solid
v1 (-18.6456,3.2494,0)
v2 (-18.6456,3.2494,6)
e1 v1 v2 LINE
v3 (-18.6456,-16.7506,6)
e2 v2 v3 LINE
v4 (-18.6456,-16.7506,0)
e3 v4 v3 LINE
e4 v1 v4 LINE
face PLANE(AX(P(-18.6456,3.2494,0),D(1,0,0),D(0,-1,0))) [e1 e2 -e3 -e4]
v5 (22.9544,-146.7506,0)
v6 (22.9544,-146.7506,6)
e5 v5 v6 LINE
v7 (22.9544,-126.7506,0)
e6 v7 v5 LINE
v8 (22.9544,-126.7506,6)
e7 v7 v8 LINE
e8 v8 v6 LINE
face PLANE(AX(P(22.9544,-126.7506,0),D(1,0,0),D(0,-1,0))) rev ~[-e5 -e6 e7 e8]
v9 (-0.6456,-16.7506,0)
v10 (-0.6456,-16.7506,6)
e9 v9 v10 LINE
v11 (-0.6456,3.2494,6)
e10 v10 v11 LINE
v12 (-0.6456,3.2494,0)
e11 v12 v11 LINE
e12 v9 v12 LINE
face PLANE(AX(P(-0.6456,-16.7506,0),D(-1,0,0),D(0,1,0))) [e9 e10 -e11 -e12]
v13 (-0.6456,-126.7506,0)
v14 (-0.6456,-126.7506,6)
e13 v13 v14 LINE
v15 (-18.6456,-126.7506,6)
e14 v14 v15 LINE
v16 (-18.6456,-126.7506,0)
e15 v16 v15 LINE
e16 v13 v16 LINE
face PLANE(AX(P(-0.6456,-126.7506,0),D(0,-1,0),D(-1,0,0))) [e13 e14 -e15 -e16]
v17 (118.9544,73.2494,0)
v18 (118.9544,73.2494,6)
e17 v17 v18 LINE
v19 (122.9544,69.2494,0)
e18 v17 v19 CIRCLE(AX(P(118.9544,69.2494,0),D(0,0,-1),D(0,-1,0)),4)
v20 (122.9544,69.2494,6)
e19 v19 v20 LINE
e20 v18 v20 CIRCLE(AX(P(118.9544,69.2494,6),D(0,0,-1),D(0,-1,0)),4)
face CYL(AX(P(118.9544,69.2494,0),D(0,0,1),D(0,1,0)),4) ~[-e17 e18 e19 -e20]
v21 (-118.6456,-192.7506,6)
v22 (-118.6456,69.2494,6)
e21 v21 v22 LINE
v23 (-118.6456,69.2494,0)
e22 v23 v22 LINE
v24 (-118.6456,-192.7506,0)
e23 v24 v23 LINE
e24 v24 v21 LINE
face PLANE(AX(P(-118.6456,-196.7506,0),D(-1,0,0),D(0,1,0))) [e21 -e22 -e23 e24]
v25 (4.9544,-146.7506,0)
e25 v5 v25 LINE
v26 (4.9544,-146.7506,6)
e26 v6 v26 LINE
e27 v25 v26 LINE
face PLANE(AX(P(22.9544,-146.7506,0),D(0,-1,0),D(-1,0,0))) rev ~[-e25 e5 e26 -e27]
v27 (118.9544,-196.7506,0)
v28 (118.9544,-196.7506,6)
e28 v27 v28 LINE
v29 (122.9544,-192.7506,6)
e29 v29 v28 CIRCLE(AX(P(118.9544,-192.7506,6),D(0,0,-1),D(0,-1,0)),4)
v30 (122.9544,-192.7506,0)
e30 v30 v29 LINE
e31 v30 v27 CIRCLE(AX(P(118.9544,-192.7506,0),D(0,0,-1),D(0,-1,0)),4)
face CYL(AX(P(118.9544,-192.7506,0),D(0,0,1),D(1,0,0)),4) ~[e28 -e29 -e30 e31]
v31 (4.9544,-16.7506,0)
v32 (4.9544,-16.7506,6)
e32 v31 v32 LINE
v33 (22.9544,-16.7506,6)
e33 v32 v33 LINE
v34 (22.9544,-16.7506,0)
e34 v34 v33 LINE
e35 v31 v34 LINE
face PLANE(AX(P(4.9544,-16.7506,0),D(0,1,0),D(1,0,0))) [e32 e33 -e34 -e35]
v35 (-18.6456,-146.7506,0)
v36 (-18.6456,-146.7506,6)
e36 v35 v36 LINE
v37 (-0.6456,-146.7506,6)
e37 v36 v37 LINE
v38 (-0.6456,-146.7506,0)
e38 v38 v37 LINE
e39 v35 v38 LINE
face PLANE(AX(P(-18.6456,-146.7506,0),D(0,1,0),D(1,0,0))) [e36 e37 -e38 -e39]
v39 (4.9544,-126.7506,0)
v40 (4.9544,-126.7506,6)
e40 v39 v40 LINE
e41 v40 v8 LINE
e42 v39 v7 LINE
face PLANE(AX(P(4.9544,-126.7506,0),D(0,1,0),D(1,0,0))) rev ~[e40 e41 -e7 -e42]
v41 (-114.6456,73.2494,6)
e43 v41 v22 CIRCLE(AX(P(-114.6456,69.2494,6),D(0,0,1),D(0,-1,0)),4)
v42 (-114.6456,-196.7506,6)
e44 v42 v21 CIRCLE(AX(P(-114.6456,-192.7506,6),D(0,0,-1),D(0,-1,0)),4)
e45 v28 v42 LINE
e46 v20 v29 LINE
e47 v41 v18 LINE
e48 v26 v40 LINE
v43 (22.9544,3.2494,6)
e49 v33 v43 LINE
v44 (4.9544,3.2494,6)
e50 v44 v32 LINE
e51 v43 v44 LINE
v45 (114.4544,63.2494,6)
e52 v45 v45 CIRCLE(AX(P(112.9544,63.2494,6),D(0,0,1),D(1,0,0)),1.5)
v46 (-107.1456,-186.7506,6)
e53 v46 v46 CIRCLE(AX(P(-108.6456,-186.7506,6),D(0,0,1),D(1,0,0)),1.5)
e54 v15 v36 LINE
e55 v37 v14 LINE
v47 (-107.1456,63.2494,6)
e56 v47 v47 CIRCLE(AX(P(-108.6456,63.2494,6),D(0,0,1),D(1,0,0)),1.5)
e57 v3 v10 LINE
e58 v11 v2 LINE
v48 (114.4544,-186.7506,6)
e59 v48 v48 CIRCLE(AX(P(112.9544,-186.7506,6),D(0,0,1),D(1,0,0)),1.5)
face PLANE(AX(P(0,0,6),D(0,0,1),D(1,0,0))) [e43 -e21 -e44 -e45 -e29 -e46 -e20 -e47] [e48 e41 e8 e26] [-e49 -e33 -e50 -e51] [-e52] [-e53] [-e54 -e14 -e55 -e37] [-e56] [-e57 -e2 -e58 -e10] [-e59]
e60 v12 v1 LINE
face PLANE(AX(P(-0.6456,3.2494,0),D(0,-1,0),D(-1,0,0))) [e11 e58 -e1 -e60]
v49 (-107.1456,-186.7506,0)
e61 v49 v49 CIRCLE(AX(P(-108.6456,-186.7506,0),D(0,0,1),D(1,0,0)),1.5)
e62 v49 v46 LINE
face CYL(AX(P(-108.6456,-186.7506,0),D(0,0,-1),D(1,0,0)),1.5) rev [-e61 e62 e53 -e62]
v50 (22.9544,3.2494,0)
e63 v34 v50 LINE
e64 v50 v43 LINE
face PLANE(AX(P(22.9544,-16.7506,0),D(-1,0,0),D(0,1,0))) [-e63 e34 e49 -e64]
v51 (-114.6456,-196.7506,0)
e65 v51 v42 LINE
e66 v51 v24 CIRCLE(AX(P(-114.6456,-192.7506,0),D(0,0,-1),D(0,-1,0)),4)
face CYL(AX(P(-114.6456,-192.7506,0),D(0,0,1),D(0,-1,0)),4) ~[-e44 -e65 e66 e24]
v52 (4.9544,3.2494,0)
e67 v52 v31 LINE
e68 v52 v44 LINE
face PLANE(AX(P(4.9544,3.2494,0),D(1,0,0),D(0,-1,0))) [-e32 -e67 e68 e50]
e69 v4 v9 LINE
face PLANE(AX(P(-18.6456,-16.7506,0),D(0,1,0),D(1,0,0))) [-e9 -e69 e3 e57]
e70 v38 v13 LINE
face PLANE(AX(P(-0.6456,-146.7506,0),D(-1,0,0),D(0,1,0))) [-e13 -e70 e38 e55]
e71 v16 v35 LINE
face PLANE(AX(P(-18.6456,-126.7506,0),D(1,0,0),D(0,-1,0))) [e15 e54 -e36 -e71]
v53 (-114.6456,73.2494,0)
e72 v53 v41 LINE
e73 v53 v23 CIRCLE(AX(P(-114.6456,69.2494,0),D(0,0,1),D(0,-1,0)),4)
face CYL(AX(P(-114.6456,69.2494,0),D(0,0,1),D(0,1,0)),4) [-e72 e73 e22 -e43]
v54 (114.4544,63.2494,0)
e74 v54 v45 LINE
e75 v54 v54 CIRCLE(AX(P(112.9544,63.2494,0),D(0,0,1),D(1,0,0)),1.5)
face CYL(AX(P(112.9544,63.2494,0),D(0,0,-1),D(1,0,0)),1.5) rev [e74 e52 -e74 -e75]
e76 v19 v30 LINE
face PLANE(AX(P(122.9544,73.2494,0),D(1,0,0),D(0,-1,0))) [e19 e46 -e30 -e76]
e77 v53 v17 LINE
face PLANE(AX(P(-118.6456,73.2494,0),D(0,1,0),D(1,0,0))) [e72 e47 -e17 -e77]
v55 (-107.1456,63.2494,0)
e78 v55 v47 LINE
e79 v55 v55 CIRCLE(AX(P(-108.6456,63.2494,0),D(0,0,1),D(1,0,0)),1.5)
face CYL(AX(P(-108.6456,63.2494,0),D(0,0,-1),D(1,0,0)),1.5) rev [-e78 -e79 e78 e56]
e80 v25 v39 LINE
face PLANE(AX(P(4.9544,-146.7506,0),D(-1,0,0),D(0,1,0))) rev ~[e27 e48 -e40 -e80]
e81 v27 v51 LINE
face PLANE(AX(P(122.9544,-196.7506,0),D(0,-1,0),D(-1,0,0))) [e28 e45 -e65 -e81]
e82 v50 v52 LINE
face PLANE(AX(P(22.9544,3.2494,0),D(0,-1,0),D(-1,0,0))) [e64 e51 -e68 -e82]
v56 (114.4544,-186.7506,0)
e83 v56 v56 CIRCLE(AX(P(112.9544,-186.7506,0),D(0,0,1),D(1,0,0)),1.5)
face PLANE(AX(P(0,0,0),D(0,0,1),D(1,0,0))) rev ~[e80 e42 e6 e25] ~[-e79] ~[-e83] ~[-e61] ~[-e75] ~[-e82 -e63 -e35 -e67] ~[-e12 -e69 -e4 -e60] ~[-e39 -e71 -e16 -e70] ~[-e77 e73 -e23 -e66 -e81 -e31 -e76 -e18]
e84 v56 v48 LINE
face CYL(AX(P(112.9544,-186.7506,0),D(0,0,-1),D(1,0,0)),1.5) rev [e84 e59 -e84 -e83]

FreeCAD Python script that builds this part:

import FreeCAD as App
import Part
import Sketcher
from FreeCAD import Vector


def edges_at(feature, points):
    """Names of the edges that pass closest to the given points."""
    edges = feature.Shape.Edges
    near = lambda p: min(range(len(edges)), key=lambda i: edges[i].distToShape(Part.Vertex(*p))[0])
    return sorted({f"Edge{near(p) + 1}" for p in points})

doc = App.newDocument("Part")
params = doc.addObject("Spreadsheet::Sheet", "Params")
for row, (alias, value) in enumerate([
    ("sketch1_diameter", "3 mm"),
    ("sketch1_height", "270 mm"),
    ("sketch1_width", "241.6 mm"),
    ("pad1_length", "6 mm"),
    ("fillet_radius", "4 mm"),
    ("sketch2_width", "18 mm"),
    ("sketch2_height", "20 mm"),
    ("pocket1_length", "6 mm"),
], start=1):
    params.set(f"A{row}", alias)
    params.set(f"B{row}", "=" + value)
    params.setAlias(f"B{row}", alias)

body = doc.addObject("PartDesign::Body", "Body")

# Sketch on XY plane
sketch1 = body.newObject("Sketcher::SketchObject", "Sketch")
sketch1.AttachmentSupport = (doc.getObject("XY_Plane"), [""])
sketch1.MapMode = "FlatFace"
sketch1.addGeometry(Part.LineSegment(Vector(123, 73.2, 0), Vector(-118.6, 73.2, 0)), False)
sketch1.addGeometry(Part.LineSegment(Vector(-118.6, 73.2, 0), Vector(-118.6, -196.8, 0)), False)
sketch1.addGeometry(Part.LineSegment(Vector(-118.6, -196.8, 0), Vector(123, -196.8, 0)), False)
sketch1.addGeometry(Part.LineSegment(Vector(123, -196.8, 0), Vector(123, 73.2, 0)), False)
sketch1.addGeometry(Part.Circle(Vector(-108.6, -186.8, 0), Vector(0, 0, 1), 1.5), False)
sketch1.addGeometry(Part.Circle(Vector(113, -186.8, 0), Vector(0, 0, 1), 1.5), False)
sketch1.addGeometry(Part.Circle(Vector(-108.6, 63.2, 0), Vector(0, 0, 1), 1.5), False)
sketch1.addGeometry(Part.Circle(Vector(113, 63.2, 0), Vector(0, 0, 1), 1.5), False)
sketch1.addConstraint(Sketcher.Constraint("Coincident", 0, 2, 1, 1))
sketch1.addConstraint(Sketcher.Constraint("Coincident", 1, 2, 2, 1))
sketch1.addConstraint(Sketcher.Constraint("Coincident", 2, 2, 3, 1))
sketch1.addConstraint(Sketcher.Constraint("Coincident", 3, 2, 0, 1))
sketch1.addConstraint(Sketcher.Constraint("Horizontal", 0))
sketch1.addConstraint(Sketcher.Constraint("Vertical", 1))
sketch1.addConstraint(Sketcher.Constraint("Horizontal", 2))
sketch1.addConstraint(Sketcher.Constraint("Vertical", 3))
sketch1.addConstraint(Sketcher.Constraint("Equal", 4, 5))
sketch1.addConstraint(Sketcher.Constraint("Equal", 5, 6))
sketch1.addConstraint(Sketcher.Constraint("Equal", 6, 7))
sketch1.addConstraint(Sketcher.Constraint("Horizontal", 4, 3, 5, 3))
sketch1.addConstraint(Sketcher.Constraint("Horizontal", 6, 3, 7, 3))
sketch1.addConstraint(Sketcher.Constraint("Vertical", 4, 3, 6, 3))
sketch1.addConstraint(Sketcher.Constraint("Vertical", 5, 3, 7, 3))
sketch1.addConstraint(Sketcher.Constraint("Diameter", 4, 3.0))
sketch1.addConstraint(Sketcher.Constraint("DistanceY", 1, 2, 1, 1, 270.0))
sketch1.addConstraint(Sketcher.Constraint("DistanceX", 0, 2, 0, 1, 241.6))
sketch1.addConstraint(Sketcher.Constraint("DistanceX", 0, 2, 6, 3, 10.0))
sketch1.addConstraint(Sketcher.Constraint("DistanceY", 6, 3, 0, 2, 10.0))
sketch1.addConstraint(Sketcher.Constraint("DistanceY", 1, 2, 4, 3, 10.0))
sketch1.addConstraint(Sketcher.Constraint("DistanceX", 5, 3, 2, 2, 10.0))
sketch1.addConstraint(Sketcher.Constraint("DistanceX", 4, 3, -1, 1, 108.6456))
sketch1.addConstraint(Sketcher.Constraint("DistanceY", 4, 3, -1, 1, 186.7506))
sketch1.setExpression("Constraints[15]", "Params.sketch1_diameter")
sketch1.setExpression("Constraints[16]", "Params.sketch1_height")
sketch1.setExpression("Constraints[17]", "Params.sketch1_width")
pad1 = body.newObject("PartDesign::Pad", "Pad")
pad1.Profile = sketch1
pad1.setExpression("Length", "Params.pad1_length")
doc.recompute()

fillet = body.newObject("PartDesign::Fillet", "Fillet")
fillet.Base = (pad1, edges_at(pad1, [
    (-118.646, 73.249, 3),
    (122.954, 73.249, 3),
    (122.954, -196.751, 3),
    (-118.646, -196.751, 3),
]))
fillet.setExpression("Radius", "Params.fillet_radius")

# Sketch on XY plane
sketch2 = body.newObject("Sketcher::SketchObject", "Sketch001")
sketch2.AttachmentSupport = (doc.getObject("XY_Plane"), [""])
sketch2.MapMode = "FlatFace"
sketch2.addGeometry(Part.LineSegment(Vector(5, 3, 0), Vector(23, 3, 0)), False)
sketch2.addGeometry(Part.LineSegment(Vector(23, 3, 0), Vector(23, -17, 0)), False)
sketch2.addGeometry(Part.LineSegment(Vector(23, -17, 0), Vector(5, -17, 0)), False)
sketch2.addGeometry(Part.LineSegment(Vector(5, -17, 0), Vector(5, 3, 0)), False)
sketch2.addGeometry(Part.LineSegment(Vector(-1, -17, 0), Vector(-19, -17, 0)), False)
sketch2.addGeometry(Part.LineSegment(Vector(-19, -17, 0), Vector(-19, 3, 0)), False)
sketch2.addGeometry(Part.LineSegment(Vector(-19, 3, 0), Vector(-1, 3, 0)), False)
sketch2.addGeometry(Part.LineSegment(Vector(-1, 3, 0), Vector(-1, -17, 0)), False)
sketch2.addGeometry(Part.LineSegment(Vector(23, -127, 0), Vector(23, -147, 0)), False)
sketch2.addGeometry(Part.LineSegment(Vector(23, -147, 0), Vector(5, -147, 0)), False)
sketch2.addGeometry(Part.LineSegment(Vector(5, -147, 0), Vector(5, -127, 0)), False)
sketch2.addGeometry(Part.LineSegment(Vector(5, -127, 0), Vector(23, -127, 0)), False)
sketch2.addGeometry(Part.LineSegment(Vector(-19, -127, 0), Vector(-1, -127, 0)), False)
sketch2.addGeometry(Part.LineSegment(Vector(-1, -127, 0), Vector(-1, -147, 0)), False)
sketch2.addGeometry(Part.LineSegment(Vector(-1, -147, 0), Vector(-19, -147, 0)), False)
sketch2.addGeometry(Part.LineSegment(Vector(-19, -147, 0), Vector(-19, -127, 0)), False)
sketch2.addConstraint(Sketcher.Constraint("Coincident", 0, 2, 1, 1))
sketch2.addConstraint(Sketcher.Constraint("Coincident", 1, 2, 2, 1))
sketch2.addConstraint(Sketcher.Constraint("Coincident", 2, 2, 3, 1))
sketch2.addConstraint(Sketcher.Constraint("Coincident", 3, 2, 0, 1))
sketch2.addConstraint(Sketcher.Constraint("Coincident", 4, 2, 5, 1))
sketch2.addConstraint(Sketcher.Constraint("Coincident", 5, 2, 6, 1))
sketch2.addConstraint(Sketcher.Constraint("Coincident", 6, 2, 7, 1))
sketch2.addConstraint(Sketcher.Constraint("Coincident", 7, 2, 4, 1))
sketch2.addConstraint(Sketcher.Constraint("Coincident", 8, 2, 9, 1))
sketch2.addConstraint(Sketcher.Constraint("Coincident", 9, 2, 10, 1))
sketch2.addConstraint(Sketcher.Constraint("Coincident", 10, 2, 11, 1))
sketch2.addConstraint(Sketcher.Constraint("Coincident", 11, 2, 8, 1))
sketch2.addConstraint(Sketcher.Constraint("Coincident", 12, 2, 13, 1))
sketch2.addConstraint(Sketcher.Constraint("Coincident", 13, 2, 14, 1))
sketch2.addConstraint(Sketcher.Constraint("Coincident", 14, 2, 15, 1))
sketch2.addConstraint(Sketcher.Constraint("Coincident", 15, 2, 12, 1))
sketch2.addConstraint(Sketcher.Constraint("Horizontal", 0))
sketch2.addConstraint(Sketcher.Constraint("Vertical", 1))
sketch2.addConstraint(Sketcher.Constraint("Horizontal", 2))
sketch2.addConstraint(Sketcher.Constraint("Vertical", 3))
sketch2.addConstraint(Sketcher.Constraint("Horizontal", 4))
sketch2.addConstraint(Sketcher.Constraint("Vertical", 5))
sketch2.addConstraint(Sketcher.Constraint("Horizontal", 6))
sketch2.addConstraint(Sketcher.Constraint("Vertical", 7))
sketch2.addConstraint(Sketcher.Constraint("Vertical", 8))
sketch2.addConstraint(Sketcher.Constraint("Horizontal", 9))
sketch2.addConstraint(Sketcher.Constraint("Vertical", 10))
sketch2.addConstraint(Sketcher.Constraint("Horizontal", 11))
sketch2.addConstraint(Sketcher.Constraint("Horizontal", 12))
sketch2.addConstraint(Sketcher.Constraint("Vertical", 13))
sketch2.addConstraint(Sketcher.Constraint("Horizontal", 14))
sketch2.addConstraint(Sketcher.Constraint("Vertical", 15))
sketch2.addConstraint(Sketcher.Constraint("Horizontal", 2, 2, 4, 2))
sketch2.addConstraint(Sketcher.Constraint("Horizontal", 3, 2, 5, 2))
sketch2.addConstraint(Sketcher.Constraint("Horizontal", 11, 2, 12, 2))
sketch2.addConstraint(Sketcher.Constraint("Horizontal", 9, 2, 13, 2))
sketch2.addConstraint(Sketcher.Constraint("Vertical", 1, 2, 8, 2))
sketch2.addConstraint(Sketcher.Constraint("Vertical", 3, 2, 9, 2))
sketch2.addConstraint(Sketcher.Constraint("Vertical", 7, 2, 12, 2))
sketch2.addConstraint(Sketcher.Constraint("Vertical", 5, 2, 14, 2))
sketch2.addConstraint(Sketcher.Constraint("Equal", 2, 4))
sketch2.addConstraint(Sketcher.Constraint("Equal", 7, 8))
sketch2.addConstraint(Sketcher.Constraint("DistanceX", 0, 1, 0, 2, 18.0))
sketch2.addConstraint(Sketcher.Constraint("DistanceY", 1, 2, 1, 1, 20.0))
sketch2.addConstraint(Sketcher.Constraint("DistanceY", 8, 2, 1, 2, 130.0))
sketch2.addConstraint(Sketcher.Constraint("DistanceX", 4, 2, 2, 2, 23.6))
sketch2.addConstraint(Sketcher.Constraint("DistanceX", -1, 1, 0, 2, 22.9544))
sketch2.addConstraint(Sketcher.Constraint("DistanceY", -1, 1, 0, 2, 3.2494))
sketch2.setExpression("Constraints[42]", "Params.sketch2_width")
sketch2.setExpression("Constraints[43]", "Params.sketch2_height")
pocket1 = body.newObject("PartDesign::Pocket", "Pocket")
pocket1.Profile = sketch2
pocket1.setExpression("Length", "Params.pocket1_length")
pocket1.Reversed = True

doc.recompute()
